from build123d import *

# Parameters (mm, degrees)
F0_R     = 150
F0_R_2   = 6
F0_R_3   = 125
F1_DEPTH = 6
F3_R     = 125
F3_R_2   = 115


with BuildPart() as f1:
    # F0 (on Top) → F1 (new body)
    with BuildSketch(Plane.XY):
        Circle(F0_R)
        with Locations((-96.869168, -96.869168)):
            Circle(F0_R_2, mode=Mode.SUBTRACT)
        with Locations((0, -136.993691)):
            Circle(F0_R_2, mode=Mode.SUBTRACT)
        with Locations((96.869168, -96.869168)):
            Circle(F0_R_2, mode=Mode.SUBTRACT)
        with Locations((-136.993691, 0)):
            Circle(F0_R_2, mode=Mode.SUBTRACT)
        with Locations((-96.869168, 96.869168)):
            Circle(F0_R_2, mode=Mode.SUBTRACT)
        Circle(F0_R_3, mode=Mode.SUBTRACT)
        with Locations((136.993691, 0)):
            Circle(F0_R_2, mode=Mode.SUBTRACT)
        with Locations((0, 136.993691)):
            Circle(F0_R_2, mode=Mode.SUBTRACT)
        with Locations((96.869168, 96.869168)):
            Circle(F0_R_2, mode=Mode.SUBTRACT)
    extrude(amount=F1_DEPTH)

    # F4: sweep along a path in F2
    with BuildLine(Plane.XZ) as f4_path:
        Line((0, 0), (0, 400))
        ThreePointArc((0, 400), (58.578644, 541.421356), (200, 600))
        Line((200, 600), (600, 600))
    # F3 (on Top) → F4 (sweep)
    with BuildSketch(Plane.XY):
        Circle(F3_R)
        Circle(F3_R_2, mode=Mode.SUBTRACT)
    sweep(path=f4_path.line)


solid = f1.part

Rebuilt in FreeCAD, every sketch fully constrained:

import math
import FreeCAD as App
import Part
import Sketcher

V = App.Vector

doc = App.newDocument("Part")
body = doc.addObject("PartDesign::Body", "Body")

# Sketch on XY plane
sketch1 = doc.addObject("Sketcher::SketchObject", "Sketch")
body.addObject(sketch1)
sketch1.AttachmentSupport = (doc.XY_Plane, [""])
sketch1.MapMode = "FlatFace"
sketch1.addGeometry(Part.Circle(V(0, 0, 0), V(0, 0, 1), 150), False)
sketch1.addGeometry(Part.Circle(V(-97, -97, 0), V(0, 0, 1), 6), False)
sketch1.addGeometry(Part.Circle(V(0, -137, 0), V(0, 0, 1), 6), False)
sketch1.addGeometry(Part.Circle(V(97, -97, 0), V(0, 0, 1), 6), False)
sketch1.addGeometry(Part.Circle(V(-137, 0, 0), V(0, 0, 1), 6), False)
sketch1.addGeometry(Part.Circle(V(-97, 97, 0), V(0, 0, 1), 6), False)
sketch1.addGeometry(Part.Circle(V(0, 0, 0), V(0, 0, 1), 125), False)
sketch1.addGeometry(Part.Circle(V(137, 0, 0), V(0, 0, 1), 6), False)
sketch1.addGeometry(Part.Circle(V(0, 137, 0), V(0, 0, 1), 6), False)
sketch1.addGeometry(Part.Circle(V(97, 97, 0), V(0, 0, 1), 6), False)
sketch1.addConstraint(Sketcher.Constraint("Coincident", 0, 3, -1, 1))
sketch1.addConstraint(Sketcher.Constraint("Coincident", 6, 3, -1, 1))
sketch1.addConstraint(Sketcher.Constraint("Equal", 1, 2))
sketch1.addConstraint(Sketcher.Constraint("Equal", 2, 3))
sketch1.addConstraint(Sketcher.Constraint("Equal", 3, 4))
sketch1.addConstraint(Sketcher.Constraint("Equal", 4, 5))
sketch1.addConstraint(Sketcher.Constraint("Equal", 5, 7))
sketch1.addConstraint(Sketcher.Constraint("Equal", 7, 8))
sketch1.addConstraint(Sketcher.Constraint("Equal", 8, 9))
sketch1.addConstraint(Sketcher.Constraint("Symmetric", 3, 3, 5, 3, -1, 1))
sketch1.addConstraint(Sketcher.Constraint("Symmetric", 4, 3, 7, 3, -1, 1))
sketch1.addConstraint(Sketcher.Constraint("Symmetric", 2, 3, 8, 3, -1, 1))
sketch1.addConstraint(Sketcher.Constraint("Symmetric", 1, 3, 9, 3, -1, 1))
sketch1.addConstraint(Sketcher.Constraint("Symmetric", 1, 3, 3, 3, -2))
sketch1.addConstraint(Sketcher.Constraint("PointOnObject", 2, 3, -2))
sketch1.addConstraint(Sketcher.Constraint("PointOnObject", 4, 3, -1))
sketch1.addConstraint(Sketcher.Constraint("Diameter", 0, 300.0))
sketch1.addConstraint(Sketcher.Constraint("Diameter", 1, 12.0))
sketch1.addConstraint(Sketcher.Constraint("Diameter", 6, 250.0))
sketch1.addConstraint(Sketcher.Constraint("DistanceX", 1, 3, -1, 1, 96.869168))
sketch1.addConstraint(Sketcher.Constraint("DistanceY", 1, 3, -1, 1, 96.869168))
sketch1.addConstraint(Sketcher.Constraint("DistanceY", 2, 3, -1, 1, 136.993691))
sketch1.addConstraint(Sketcher.Constraint("DistanceX", 4, 3, -1, 1, 136.993691))
pad1 = doc.addObject("PartDesign::Pad", "Pad")
body.addObject(pad1)
pad1.Profile = sketch1
pad1.Length = 6

# Sketch on XY plane
sketch2 = doc.addObject("Sketcher::SketchObject", "Sketch001")
body.addObject(sketch2)
sketch2.AttachmentSupport = (doc.XY_Plane, [""])
sketch2.MapMode = "FlatFace"
sketch2.addGeometry(Part.Circle(V(0, 0, 0), V(0, 0, 1), 125), False)
sketch2.addGeometry(Part.Circle(V(0, 0, 0), V(0, 0, 1), 115), False)
sketch2.addConstraint(Sketcher.Constraint("Coincident", 0, 3, -1, 1))
sketch2.addConstraint(Sketcher.Constraint("Coincident", 1, 3, -1, 1))
sketch2.addConstraint(Sketcher.Constraint("Diameter", 0, 250.0))
sketch2.addConstraint(Sketcher.Constraint("Diameter", 1, 230.0))

# Sketch on XZ plane
sketch3 = doc.addObject("Sketcher::SketchObject", "Sketch002")
body.addObject(sketch3)
sketch3.AttachmentSupport = (doc.XZ_Plane, [""])
sketch3.MapMode = "FlatFace"
sketch3.addGeometry(Part.LineSegment(V(0, 0, 0), V(0, 400, 0)), False)
sketch3.addGeometry(Part.ArcOfCircle(Part.Circle(V(200, 400, 0), V(0, 0, 1), 200), math.radians(90), math.radians(180)), False)
sketch3.addGeometry(Part.LineSegment(V(200, 600, 0), V(600, 600, 0)), False)
sketch3.addConstraint(Sketcher.Constraint("Tangent", 0, 2, 1, 2))
sketch3.addConstraint(Sketcher.Constraint("Tangent", 1, 1, 2, 1))
sketch3.addConstraint(Sketcher.Constraint("Vertical", 0))
sketch3.addConstraint(Sketcher.Constraint("Horizontal", 2))
sketch3.addConstraint(Sketcher.Constraint("Coincident", 0, 1, -1, 1))
sketch3.addConstraint(Sketcher.Constraint("Equal", 2, 0))
sketch3.addConstraint(Sketcher.Constraint("Radius", 1, 200.000001))
sketch3.addConstraint(Sketcher.Constraint("DistanceX", 2, 1, 2, 2, 400.0))
doc.recompute()

additivepipe = doc.addObject("PartDesign::AdditivePipe", "AdditivePipe")
body.addObject(additivepipe)
additivepipe.Profile = sketch2
additivepipe.Spine = (sketch3, ["Edge1", "Edge2", "Edge3"])

doc.recompute()
